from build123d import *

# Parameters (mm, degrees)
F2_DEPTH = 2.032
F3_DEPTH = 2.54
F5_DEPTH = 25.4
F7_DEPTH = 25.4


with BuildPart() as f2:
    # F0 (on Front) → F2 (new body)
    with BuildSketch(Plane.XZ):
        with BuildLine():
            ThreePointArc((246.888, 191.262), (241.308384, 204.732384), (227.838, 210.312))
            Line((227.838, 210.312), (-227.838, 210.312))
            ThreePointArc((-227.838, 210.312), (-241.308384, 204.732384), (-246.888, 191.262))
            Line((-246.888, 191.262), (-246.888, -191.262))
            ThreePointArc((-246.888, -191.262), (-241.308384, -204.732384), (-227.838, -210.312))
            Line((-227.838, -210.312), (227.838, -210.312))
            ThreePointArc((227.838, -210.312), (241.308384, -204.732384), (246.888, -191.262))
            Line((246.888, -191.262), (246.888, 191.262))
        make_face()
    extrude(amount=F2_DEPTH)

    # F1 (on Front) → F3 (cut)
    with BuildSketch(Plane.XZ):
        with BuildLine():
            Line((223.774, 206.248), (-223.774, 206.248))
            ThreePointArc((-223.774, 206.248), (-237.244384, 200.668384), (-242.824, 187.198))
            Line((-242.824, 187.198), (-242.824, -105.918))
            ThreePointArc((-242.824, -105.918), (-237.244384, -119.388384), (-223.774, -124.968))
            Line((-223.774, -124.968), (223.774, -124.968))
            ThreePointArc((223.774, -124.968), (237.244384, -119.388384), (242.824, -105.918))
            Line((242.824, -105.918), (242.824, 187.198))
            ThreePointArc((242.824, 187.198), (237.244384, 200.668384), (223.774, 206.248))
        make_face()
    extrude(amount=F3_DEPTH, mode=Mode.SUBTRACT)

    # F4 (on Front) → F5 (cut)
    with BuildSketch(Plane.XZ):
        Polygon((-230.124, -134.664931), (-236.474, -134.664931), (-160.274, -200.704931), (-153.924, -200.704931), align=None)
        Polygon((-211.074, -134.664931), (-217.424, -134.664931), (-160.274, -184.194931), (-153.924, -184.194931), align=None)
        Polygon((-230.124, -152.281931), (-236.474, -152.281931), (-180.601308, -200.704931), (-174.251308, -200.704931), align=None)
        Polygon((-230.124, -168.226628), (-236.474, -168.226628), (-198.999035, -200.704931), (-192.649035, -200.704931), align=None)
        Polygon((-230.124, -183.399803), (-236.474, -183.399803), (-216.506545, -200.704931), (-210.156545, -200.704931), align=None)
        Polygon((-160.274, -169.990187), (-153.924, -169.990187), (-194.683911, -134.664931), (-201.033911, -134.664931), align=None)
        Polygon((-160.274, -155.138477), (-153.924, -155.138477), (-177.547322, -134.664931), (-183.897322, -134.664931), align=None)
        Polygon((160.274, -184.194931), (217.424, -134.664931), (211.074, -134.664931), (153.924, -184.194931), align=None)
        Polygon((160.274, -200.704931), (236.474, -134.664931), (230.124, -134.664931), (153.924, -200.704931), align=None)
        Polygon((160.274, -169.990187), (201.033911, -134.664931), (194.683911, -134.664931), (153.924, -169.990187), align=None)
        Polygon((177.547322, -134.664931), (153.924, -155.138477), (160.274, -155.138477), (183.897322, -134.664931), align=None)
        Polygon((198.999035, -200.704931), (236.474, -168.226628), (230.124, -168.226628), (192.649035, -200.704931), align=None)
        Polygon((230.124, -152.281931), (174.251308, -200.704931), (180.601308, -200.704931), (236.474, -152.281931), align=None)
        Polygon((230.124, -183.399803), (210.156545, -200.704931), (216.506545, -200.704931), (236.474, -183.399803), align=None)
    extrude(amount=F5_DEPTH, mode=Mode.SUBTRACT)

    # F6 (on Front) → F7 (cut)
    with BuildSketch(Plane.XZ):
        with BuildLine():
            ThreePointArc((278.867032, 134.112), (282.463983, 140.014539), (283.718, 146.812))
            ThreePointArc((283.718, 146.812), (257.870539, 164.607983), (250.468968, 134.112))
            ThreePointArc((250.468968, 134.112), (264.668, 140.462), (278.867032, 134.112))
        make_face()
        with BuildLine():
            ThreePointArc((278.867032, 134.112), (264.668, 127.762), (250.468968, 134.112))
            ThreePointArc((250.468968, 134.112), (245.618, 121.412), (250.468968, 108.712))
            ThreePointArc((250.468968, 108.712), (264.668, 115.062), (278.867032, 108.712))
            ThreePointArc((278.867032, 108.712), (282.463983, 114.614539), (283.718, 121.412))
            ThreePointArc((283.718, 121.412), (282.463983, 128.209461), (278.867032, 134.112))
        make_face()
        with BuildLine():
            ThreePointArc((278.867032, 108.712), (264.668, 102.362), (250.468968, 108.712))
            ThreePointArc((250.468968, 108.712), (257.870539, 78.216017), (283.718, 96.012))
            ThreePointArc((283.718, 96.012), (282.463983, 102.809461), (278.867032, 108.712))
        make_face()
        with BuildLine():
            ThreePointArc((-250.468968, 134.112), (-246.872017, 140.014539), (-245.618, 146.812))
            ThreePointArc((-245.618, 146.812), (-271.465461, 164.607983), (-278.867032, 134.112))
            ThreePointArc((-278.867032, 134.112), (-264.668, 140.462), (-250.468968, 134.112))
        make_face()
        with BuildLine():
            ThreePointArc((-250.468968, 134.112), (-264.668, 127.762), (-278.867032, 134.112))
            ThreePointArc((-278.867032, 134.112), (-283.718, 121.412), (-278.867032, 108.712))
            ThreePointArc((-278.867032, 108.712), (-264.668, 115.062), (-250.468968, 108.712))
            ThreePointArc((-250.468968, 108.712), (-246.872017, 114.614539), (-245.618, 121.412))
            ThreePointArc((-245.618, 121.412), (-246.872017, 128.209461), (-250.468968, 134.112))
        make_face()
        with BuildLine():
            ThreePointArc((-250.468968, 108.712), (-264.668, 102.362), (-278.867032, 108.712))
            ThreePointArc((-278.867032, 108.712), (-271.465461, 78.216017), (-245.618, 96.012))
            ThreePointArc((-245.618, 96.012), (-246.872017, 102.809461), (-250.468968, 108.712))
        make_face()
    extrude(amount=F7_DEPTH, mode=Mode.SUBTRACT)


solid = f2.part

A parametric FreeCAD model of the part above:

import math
import FreeCAD as App
import Part
import Sketcher
from FreeCAD import Vector
Q = App.Units.Quantity

doc = App.newDocument("Part")
body = doc.addObject("PartDesign::Body", "Body")

sketch1 = body.newObject("Sketcher::SketchObject", "Sketch")
sketch1.AttachmentSupport = (doc.getObject("XZ_Plane"), [""])
sketch1.MapMode = "FlatFace"
sketch1.addGeometry([
    Part.ArcOfCircle(Part.Circle(Vector(228, 191, 0), Vector(0, 0, 1), 19), math.radians(0), math.radians(90)),
    Part.LineSegment(Vector(228, 210, 0), Vector(-228, 210, 0)),
    Part.ArcOfCircle(Part.Circle(Vector(-228, 191, 0), Vector(0, 0, 1), 19), math.radians(90), math.radians(180)),
    Part.LineSegment(Vector(-247, 191, 0), Vector(-247, -191, 0)),
    Part.ArcOfCircle(Part.Circle(Vector(-228, -191, 0), Vector(0, 0, 1), 19), math.radians(-180), math.radians(-90)),
    Part.LineSegment(Vector(-228, -210, 0), Vector(228, -210, 0)),
    Part.ArcOfCircle(Part.Circle(Vector(228, -191, 0), Vector(0, 0, 1), 19), math.radians(-90), math.radians(0)),
    Part.LineSegment(Vector(247, -191, 0), Vector(247, 191, 0)),
], False)
sketch1.addConstraint([
    Sketcher.Constraint("Tangent", 0, 2, 1, 1),
    Sketcher.Constraint("Tangent", 1, 2, 2, 1),
    Sketcher.Constraint("Tangent", 2, 2, 3, 1),
    Sketcher.Constraint("Tangent", 3, 2, 4, 1),
    Sketcher.Constraint("Tangent", 4, 2, 5, 1),
    Sketcher.Constraint("Tangent", 5, 2, 6, 1),
    Sketcher.Constraint("Tangent", 6, 2, 7, 1),
    Sketcher.Constraint("Tangent", 7, 2, 0, 1),
    Sketcher.Constraint("Horizontal", 1),
    Sketcher.Constraint("Vertical", 3),
    Sketcher.Constraint("Horizontal", 5),
    Sketcher.Constraint("Vertical", 7),
    Sketcher.Constraint("Equal", 0, 2),
    Sketcher.Constraint("Equal", 2, 4),
    Sketcher.Constraint("Equal", 4, 6),
    Sketcher.Constraint("Symmetric", 0, 3, 4, 3, -1, 1),
    Sketcher.Constraint("Radius", 0, Q("0.75 in")),
    Sketcher.Constraint("DistanceX", 1, 2, 1, 1, Q("17.94 in")),
    Sketcher.Constraint("DistanceY", 3, 2, 3, 1, Q("15.06 in")),
])
pad1 = body.newObject("PartDesign::Pad", "Pad")
pad1.Profile = sketch1
pad1.Length = Q("0.08 in")

sketch2 = body.newObject("Sketcher::SketchObject", "Sketch001")
sketch2.AttachmentSupport = (doc.getObject("XZ_Plane"), [""])
sketch2.MapMode = "FlatFace"
sketch2.addGeometry([
    Part.LineSegment(Vector(224, 206, 0), Vector(-224, 206, 0)),
    Part.ArcOfCircle(Part.Circle(Vector(-224, 187, 0), Vector(0, 0, 1), 19), math.radians(90), math.radians(180)),
    Part.LineSegment(Vector(-243, 187, 0), Vector(-243, -106, 0)),
    Part.ArcOfCircle(Part.Circle(Vector(-224, -106, 0), Vector(0, 0, 1), 19), math.radians(-180), math.radians(-90)),
    Part.LineSegment(Vector(-224, -125, 0), Vector(224, -125, 0)),
    Part.ArcOfCircle(Part.Circle(Vector(224, -106, 0), Vector(0, 0, 1), 19), math.radians(-90), math.radians(0)),
    Part.LineSegment(Vector(243, -106, 0), Vector(243, 187, 0)),
    Part.ArcOfCircle(Part.Circle(Vector(224, 187, 0), Vector(0, 0, 1), 19), math.radians(0), math.radians(90)),
], False)
sketch2.addConstraint([
    Sketcher.Constraint("Tangent", 0, 2, 1, 1),
    Sketcher.Constraint("Tangent", 1, 2, 2, 1),
    Sketcher.Constraint("Tangent", 2, 2, 3, 1),
    Sketcher.Constraint("Tangent", 3, 2, 4, 1),
    Sketcher.Constraint("Tangent", 4, 2, 5, 1),
    Sketcher.Constraint("Tangent", 5, 2, 6, 1),
    Sketcher.Constraint("Tangent", 6, 2, 7, 1),
    Sketcher.Constraint("Tangent", 7, 2, 0, 1),
    Sketcher.Constraint("Horizontal", 0),
    Sketcher.Constraint("Vertical", 2),
    Sketcher.Constraint("Horizontal", 4),
    Sketcher.Constraint("Vertical", 6),
    Sketcher.Constraint("Equal", 1, 3),
    Sketcher.Constraint("Equal", 3, 5),
    Sketcher.Constraint("Equal", 5, 7),
    Sketcher.Constraint("Radius", 1, Q("0.75 in")),
    Sketcher.Constraint("DistanceX", 0, 2, 0, 1, Q("17.62 in")),
    Sketcher.Constraint("DistanceY", 2, 2, 2, 1, Q("11.54 in")),
    Sketcher.Constraint("DistanceX", 1, 3, -1, 1, Q("8.81 in")),
    Sketcher.Constraint("DistanceY", -1, 1, 1, 3, Q("7.37 in")),
])
pocket1 = body.newObject("PartDesign::Pocket", "Pocket")
pocket1.Profile = sketch2
pocket1.Length = Q("0.1 in")
pocket1.Reversed = True

sketch3 = body.newObject("Sketcher::SketchObject", "Sketch002")
sketch3.AttachmentSupport = (doc.getObject("XZ_Plane"), [""])
sketch3.MapMode = "FlatFace"
sketch3.addGeometry([
    Part.LineSegment(Vector(-230, -135, 0), Vector(-236, -135, 0)),
    Part.LineSegment(Vector(-236, -135, 0), Vector(-160, -201, 0)),
    Part.LineSegment(Vector(-160, -201, 0), Vector(-154, -201, 0)),
    Part.LineSegment(Vector(-154, -201, 0), Vector(-230, -135, 0)),
    Part.LineSegment(Vector(-211, -135, 0), Vector(-217, -135, 0)),
    Part.LineSegment(Vector(-217, -135, 0), Vector(-160, -184, 0)),
    Part.LineSegment(Vector(-160, -184, 0), Vector(-154, -184, 0)),
    Part.LineSegment(Vector(-154, -184, 0), Vector(-211, -135, 0)),
    Part.LineSegment(Vector(-230, -152, 0), Vector(-236, -152, 0)),
    Part.LineSegment(Vector(-236, -152, 0), Vector(-181, -201, 0)),
    Part.LineSegment(Vector(-181, -201, 0), Vector(-174, -201, 0)),
    Part.LineSegment(Vector(-174, -201, 0), Vector(-230, -152, 0)),
    Part.LineSegment(Vector(-230, -168, 0), Vector(-236, -168, 0)),
    Part.LineSegment(Vector(-236, -168, 0), Vector(-199, -201, 0)),
    Part.LineSegment(Vector(-199, -201, 0), Vector(-193, -201, 0)),
    Part.LineSegment(Vector(-193, -201, 0), Vector(-230, -168, 0)),
    Part.LineSegment(Vector(-230, -183, 0), Vector(-236, -183, 0)),
    Part.LineSegment(Vector(-236, -183, 0), Vector(-217, -201, 0)),
    Part.LineSegment(Vector(-217, -201, 0), Vector(-210, -201, 0)),
    Part.LineSegment(Vector(-210, -201, 0), Vector(-230, -183, 0)),
    Part.LineSegment(Vector(-160, -170, 0), Vector(-154, -170, 0)),
    Part.LineSegment(Vector(-154, -170, 0), Vector(-195, -135, 0)),
    Part.LineSegment(Vector(-195, -135, 0), Vector(-201, -135, 0)),
    Part.LineSegment(Vector(-201, -135, 0), Vector(-160, -170, 0)),
    Part.LineSegment(Vector(-160, -155, 0), Vector(-154, -155, 0)),
    Part.LineSegment(Vector(-154, -155, 0), Vector(-178, -135, 0)),
    Part.LineSegment(Vector(-178, -135, 0), Vector(-184, -135, 0)),
    Part.LineSegment(Vector(-184, -135, 0), Vector(-160, -155, 0)),
    Part.LineSegment(Vector(160, -184, 0), Vector(217, -135, 0)),
    Part.LineSegment(Vector(217, -135, 0), Vector(211, -135, 0)),
    Part.LineSegment(Vector(211, -135, 0), Vector(154, -184, 0)),
    Part.LineSegment(Vector(154, -184, 0), Vector(160, -184, 0)),
    Part.LineSegment(Vector(160, -201, 0), Vector(236, -135, 0)),
    Part.LineSegment(Vector(236, -135, 0), Vector(230, -135, 0)),
    Part.LineSegment(Vector(230, -135, 0), Vector(154, -201, 0)),
    Part.LineSegment(Vector(154, -201, 0), Vector(160, -201, 0)),
    Part.LineSegment(Vector(160, -170, 0), Vector(201, -135, 0)),
    Part.LineSegment(Vector(201, -135, 0), Vector(195, -135, 0)),
    Part.LineSegment(Vector(195, -135, 0), Vector(154, -170, 0)),
    Part.LineSegment(Vector(154, -170, 0), Vector(160, -170, 0)),
    Part.LineSegment(Vector(178, -135, 0), Vector(154, -155, 0)),
    Part.LineSegment(Vector(154, -155, 0), Vector(160, -155, 0)),
    Part.LineSegment(Vector(160, -155, 0), Vector(184, -135, 0)),
    Part.LineSegment(Vector(184, -135, 0), Vector(178, -135, 0)),
    Part.LineSegment(Vector(199, -201, 0), Vector(236, -168, 0)),
    Part.LineSegment(Vector(236, -168, 0), Vector(230, -168, 0)),
    Part.LineSegment(Vector(230, -168, 0), Vector(193, -201, 0)),
    Part.LineSegment(Vector(193, -201, 0), Vector(199, -201, 0)),
    Part.LineSegment(Vector(230, -152, 0), Vector(174, -201, 0)),
    Part.LineSegment(Vector(174, -201, 0), Vector(181, -201, 0)),
    Part.LineSegment(Vector(181, -201, 0), Vector(236, -152, 0)),
    Part.LineSegment(Vector(236, -152, 0), Vector(230, -152, 0)),
    Part.LineSegment(Vector(230, -183, 0), Vector(210, -201, 0)),
    Part.LineSegment(Vector(210, -201, 0), Vector(217, -201, 0)),
    Part.LineSegment(Vector(217, -201, 0), Vector(236, -183, 0)),
    Part.LineSegment(Vector(236, -183, 0), Vector(230, -183, 0)),
], False)
sketch3.addConstraint([
    Sketcher.Constraint("Coincident", 0, 2, 1, 1),
    Sketcher.Constraint("Coincident", 1, 2, 2, 1),
    Sketcher.Constraint("Coincident", 2, 2, 3, 1),
    Sketcher.Constraint("Coincident", 3, 2, 0, 1),
    Sketcher.Constraint("Coincident", 4, 2, 5, 1),
    Sketcher.Constraint("Coincident", 5, 2, 6, 1),
    Sketcher.Constraint("Coincident", 6, 2, 7, 1),
    Sketcher.Constraint("Coincident", 7, 2, 4, 1),
    Sketcher.Constraint("Coincident", 8, 2, 9, 1),
    Sketcher.Constraint("Coincident", 9, 2, 10, 1),
    Sketcher.Constraint("Coincident", 10, 2, 11, 1),
    Sketcher.Constraint("Coincident", 11, 2, 8, 1),
    Sketcher.Constraint("Coincident", 12, 2, 13, 1),
    Sketcher.Constraint("Coincident", 13, 2, 14, 1),
    Sketcher.Constraint("Coincident", 14, 2, 15, 1),
    Sketcher.Constraint("Coincident", 15, 2, 12, 1),
    Sketcher.Constraint("Coincident", 16, 2, 17, 1),
    Sketcher.Constraint("Coincident", 17, 2, 18, 1),
    Sketcher.Constraint("Coincident", 18, 2, 19, 1),
    Sketcher.Constraint("Coincident", 19, 2, 16, 1),
    Sketcher.Constraint("Coincident", 20, 2, 21, 1),
    Sketcher.Constraint("Coincident", 21, 2, 22, 1),
    Sketcher.Constraint("Coincident", 22, 2, 23, 1),
    Sketcher.Constraint("Coincident", 23, 2, 20, 1),
    Sketcher.Constraint("Coincident", 24, 2, 25, 1),
    Sketcher.Constraint("Coincident", 25, 2, 26, 1),
    Sketcher.Constraint("Coincident", 26, 2, 27, 1),
    Sketcher.Constraint("Coincident", 27, 2, 24, 1),
    Sketcher.Constraint("Coincident", 28, 2, 29, 1),
    Sketcher.Constraint("Coincident", 29, 2, 30, 1),
    Sketcher.Constraint("Coincident", 30, 2, 31, 1),
    Sketcher.Constraint("Coincident", 31, 2, 28, 1),
    Sketcher.Constraint("Coincident", 32, 2, 33, 1),
    Sketcher.Constraint("Coincident", 33, 2, 34, 1),
    Sketcher.Constraint("Coincident", 34, 2, 35, 1),
    Sketcher.Constraint("Coincident", 35, 2, 32, 1),
    Sketcher.Constraint("Coincident", 36, 2, 37, 1),
    Sketcher.Constraint("Coincident", 37, 2, 38, 1),
    Sketcher.Constraint("Coincident", 38, 2, 39, 1),
    Sketcher.Constraint("Coincident", 39, 2, 36, 1),
    Sketcher.Constraint("Coincident", 40, 2, 41, 1),
    Sketcher.Constraint("Coincident", 41, 2, 42, 1),
    Sketcher.Constraint("Coincident", 42, 2, 43, 1),
    Sketcher.Constraint("Coincident", 43, 2, 40, 1),
    Sketcher.Constraint("Coincident", 44, 2, 45, 1),
    Sketcher.Constraint("Coincident", 45, 2, 46, 1),
    Sketcher.Constraint("Coincident", 46, 2, 47, 1),
    Sketcher.Constraint("Coincident", 47, 2, 44, 1),
    Sketcher.Constraint("Coincident", 48, 2, 49, 1),
    Sketcher.Constraint("Coincident", 49, 2, 50, 1),
    Sketcher.Constraint("Coincident", 50, 2, 51, 1),
    Sketcher.Constraint("Coincident", 51, 2, 48, 1),
    Sketcher.Constraint("Coincident", 52, 2, 53, 1),
    Sketcher.Constraint("Coincident", 53, 2, 54, 1),
    Sketcher.Constraint("Coincident", 54, 2, 55, 1),
    Sketcher.Constraint("Coincident", 55, 2, 52, 1),
    Sketcher.Constraint("Horizontal", 0),
    Sketcher.Constraint("Horizontal", 2),
    Sketcher.Constraint("Horizontal", 4),
    Sketcher.Constraint("Horizontal", 6),
    Sketcher.Constraint("Horizontal", 8),
    Sketcher.Constraint("Horizontal", 10),
    Sketcher.Constraint("Horizontal", 12),
    Sketcher.Constraint("Horizontal", 14),
    Sketcher.Constraint("Horizontal", 16),
    Sketcher.Constraint("Horizontal", 18),
    Sketcher.Constraint("Horizontal", 20),
    Sketcher.Constraint("Horizontal", 22),
    Sketcher.Constraint("Horizontal", 24),
    Sketcher.Constraint("Horizontal", 26),
    Sketcher.Constraint("Horizontal", 29),
    Sketcher.Constraint("Horizontal", 31),
    Sketcher.Constraint("Horizontal", 33),
    Sketcher.Constraint("Horizontal", 35),
    Sketcher.Constraint("Horizontal", 37),
    Sketcher.Constraint("Horizontal", 39),
    Sketcher.Constraint("Horizontal", 41),
    Sketcher.Constraint("Horizontal", 43),
    Sketcher.Constraint("Horizontal", 45),
    Sketcher.Constraint("Horizontal", 47),
    Sketcher.Constraint("Horizontal", 49),
    Sketcher.Constraint("Horizontal", 51),
    Sketcher.Constraint("Horizontal", 53),
    Sketcher.Constraint("Horizontal", 55),
    Sketcher.Constraint("Symmetric", 4, 2, 28, 2, -2),
    Sketcher.Constraint("Symmetric", 6, 2, 30, 2, -2),
    Sketcher.Constraint("Symmetric", 0, 2, 32, 2, -2),
    Sketcher.Constraint("Symmetric", 2, 2, 34, 2, -2),
    Sketcher.Constraint("Symmetric", 22, 2, 36, 2, -2),
    Sketcher.Constraint("Symmetric", 20, 2, 38, 2, -2),
    Sketcher.Constraint("Symmetric", 24, 2, 40, 2, -2),
    Sketcher.Constraint("Symmetric", 26, 2, 42, 2, -2),
    Sketcher.Constraint("Symmetric", 12, 2, 44, 2, -2),
    Sketcher.Constraint("Symmetric", 14, 2, 46, 2, -2),
    Sketcher.Constraint("Symmetric", 10, 2, 48, 2, -2),
    Sketcher.Constraint("Symmetric", 8, 2, 50, 2, -2),
    Sketcher.Constraint("Symmetric", 18, 2, 52, 2, -2),
    Sketcher.Constraint("Symmetric", 16, 2, 54, 2, -2),
    Sketcher.Constraint("Parallel", 1, 3),
    Sketcher.Constraint("Parallel", 3, 5),
    Sketcher.Constraint("Parallel", 5, 7),
    Sketcher.Constraint("Parallel", 7, 9),
    Sketcher.Constraint("Parallel", 9, 11),
    Sketcher.Constraint("Parallel", 11, 13),
    Sketcher.Constraint("Parallel", 13, 15),
    Sketcher.Constraint("Parallel", 15, 17),
    Sketcher.Constraint("Parallel", 17, 19),
    Sketcher.Constraint("Parallel", 19, 21),
    Sketcher.Constraint("Parallel", 21, 23),
    Sketcher.Constraint("Parallel", 23, 25),
    Sketcher.Constraint("Parallel", 25, 27),
    Sketcher.Constraint("Parallel", 28, 30),
    Sketcher.Constraint("Parallel", 30, 32),
    Sketcher.Constraint("Parallel", 32, 34),
    Sketcher.Constraint("Parallel", 34, 36),
    Sketcher.Constraint("Parallel", 36, 38),
    Sketcher.Constraint("Parallel", 38, 40),
    Sketcher.Constraint("Parallel", 40, 42),
    Sketcher.Constraint("Parallel", 42, 44),
    Sketcher.Constraint("Parallel", 44, 46),
    Sketcher.Constraint("Parallel", 46, 48),
    Sketcher.Constraint("Parallel", 48, 50),
    Sketcher.Constraint("Parallel", 50, 52),
    Sketcher.Constraint("Parallel", 52, 54),
    Sketcher.Constraint("Horizontal", 3, 2, 4, 2),
    Sketcher.Constraint("Horizontal", 2, 2, 9, 2),
    Sketcher.Constraint("Horizontal", 10, 2, 13, 2),
    Sketcher.Constraint("Horizontal", 14, 2, 17, 2),
    Sketcher.Constraint("Horizontal", 7, 2, 21, 2),
    Sketcher.Constraint("Horizontal", 22, 2, 25, 2),
    Sketcher.Constraint("Vertical", 1, 2, 5, 2),
    Sketcher.Constraint("Vertical", 2, 2, 6, 2),
    Sketcher.Constraint("Vertical", 0, 2, 8, 2),
    Sketcher.Constraint("Vertical", 3, 2, 11, 2),
    Sketcher.Constraint("Vertical", 8, 2, 12, 2),
    Sketcher.Constraint("Vertical", 11, 2, 15, 2),
    Sketcher.Constraint("Vertical", 12, 2, 16, 2),
    Sketcher.Constraint("Vertical", 15, 2, 19, 2),
    Sketcher.Constraint("Vertical", 6, 2, 20, 2),
    Sketcher.Constraint("Vertical", 5, 2, 23, 2),
    Sketcher.Constraint("Vertical", 20, 2, 24, 2),
    Sketcher.Constraint("Vertical", 23, 2, 27, 2),
    Sketcher.Constraint("Vertical", 31, 2, 35, 2),
    Sketcher.Constraint("DistanceX", 0, 2, 1, 2, Q("3 in")),
    Sketcher.Constraint("DistanceX", 0, 2, 7, 2, Q("1 in")),
    Sketcher.Constraint("DistanceX", 0, 2, 0, 1, Q("0.25 in")),
    Sketcher.Constraint("DistanceY", 1, 2, 0, 2, Q("2.6 in")),
    Sketcher.Constraint("DistanceX", 0, 2, -1, 1, Q("9.31 in")),
    Sketcher.Constraint("DistanceY", 8, 2, 0, 2, 17.617),
    Sketcher.Constraint("Distance", 21, 53.937409),
    Sketcher.Constraint("DistanceY", 0, 2, -1, 1, 134.664931),
    Sketcher.Constraint("DistanceY", 12, 2, -1, 1, 168.226628),
    Sketcher.Constraint("DistanceX", 25, 2, -1, 1, 177.547322),
    Sketcher.Constraint("DistanceX", 17, 2, 13, 2, 17.50751),
])
pocket2 = body.newObject("PartDesign::Pocket", "Pocket001")
pocket2.Profile = sketch3
pocket2.Length = Q("1 in")
pocket2.Reversed = True

sketch4 = body.newObject("Sketcher::SketchObject", "Sketch003")
sketch4.AttachmentSupport = (doc.getObject("XZ_Plane"), [""])
sketch4.MapMode = "FlatFace"
sketch4.addGeometry([
    Part.ArcOfCircle(Part.Circle(Vector(265, 147, 0), Vector(0, 0, 1), 19), math.radians(-42), math.radians(0)),
    Part.ArcOfCircle(Part.Circle(Vector(265, 147, 0), Vector(0, 0, 1), 19), math.radians(0), math.radians(222)),
    Part.ArcOfCircle(Part.Circle(Vector(265, 121, 0), Vector(0, 0, 1), 19), math.radians(42), math.radians(138)),
    Part.ArcOfCircle(Part.Circle(Vector(265, 147, 0), Vector(0, 0, 1), 19), math.radians(-138), math.radians(-42)),
    Part.ArcOfCircle(Part.Circle(Vector(265, 121, 0), Vector(0, 0, 1), 19), math.radians(138), math.radians(222)),
    Part.ArcOfCircle(Part.Circle(Vector(265, 96, 0), Vector(0, 0, 1), 19), math.radians(42), math.radians(138)),
    Part.ArcOfCircle(Part.Circle(Vector(265, 121, 0), Vector(0, 0, 1), 19), math.radians(-42), math.radians(0)),
    Part.ArcOfCircle(Part.Circle(Vector(265, 121, 0), Vector(0, 0, 1), 19), math.radians(0), math.radians(42)),
    Part.ArcOfCircle(Part.Circle(Vector(265, 121, 0), Vector(0, 0, 1), 19), math.radians(-138), math.radians(-42)),
    Part.ArcOfCircle(Part.Circle(Vector(265, 96, 0), Vector(0, 0, 1), 19), math.radians(138), math.radians(360)),
    Part.ArcOfCircle(Part.Circle(Vector(265, 96, 0), Vector(0, 0, 1), 19), math.radians(0), math.radians(42)),
    Part.ArcOfCircle(Part.Circle(Vector(-265, 147, 0), Vector(0, 0, 1), 19), math.radians(-42), math.radians(0)),
    Part.ArcOfCircle(Part.Circle(Vector(-265, 147, 0), Vector(0, 0, 1), 19), math.radians(0), math.radians(222)),
    Part.ArcOfCircle(Part.Circle(Vector(-265, 121, 0), Vector(0, 0, 1), 19), math.radians(42), math.radians(138)),
    Part.ArcOfCircle(Part.Circle(Vector(-265, 147, 0), Vector(0, 0, 1), 19), math.radians(-138), math.radians(-42)),
    Part.ArcOfCircle(Part.Circle(Vector(-265, 121, 0), Vector(0, 0, 1), 19), math.radians(138), math.radians(222)),
    Part.ArcOfCircle(Part.Circle(Vector(-265, 96, 0), Vector(0, 0, 1), 19), math.radians(42), math.radians(138)),
    Part.ArcOfCircle(Part.Circle(Vector(-265, 121, 0), Vector(0, 0, 1), 19), math.radians(-42), math.radians(0)),
    Part.ArcOfCircle(Part.Circle(Vector(-265, 121, 0), Vector(0, 0, 1), 19), math.radians(0), math.radians(42)),
    Part.ArcOfCircle(Part.Circle(Vector(-265, 121, 0), Vector(0, 0, 1), 19), math.radians(-138), math.radians(-42)),
    Part.ArcOfCircle(Part.Circle(Vector(-265, 96, 0), Vector(0, 0, 1), 19), math.radians(138), math.radians(360)),
    Part.ArcOfCircle(Part.Circle(Vector(-265, 96, 0), Vector(0, 0, 1), 19), math.radians(0), math.radians(42)),
], False)
sketch4.addConstraint([
    Sketcher.Constraint("Tangent", 0, 2, 1, 1),
    Sketcher.Constraint("Coincident", 1, 2, 2, 2),
    Sketcher.Constraint("Coincident", 2, 1, 0, 1),
    Sketcher.Constraint("Coincident", 3, 1, 4, 1),
    Sketcher.Constraint("Coincident", 4, 2, 5, 2),
    Sketcher.Constraint("Coincident", 5, 1, 6, 1),
    Sketcher.Constraint("Tangent", 6, 2, 7, 1),
    Sketcher.Constraint("Coincident", 7, 2, 3, 2),
    Sketcher.Constraint("Coincident", 8, 1, 9, 1),
    Sketcher.Constraint("Tangent", 9, 2, 10, 1),
    Sketcher.Constraint("Coincident", 10, 2, 8, 2),
    Sketcher.Constraint("Tangent", 11, 2, 12, 1),
    Sketcher.Constraint("Coincident", 12, 2, 13, 2),
    Sketcher.Constraint("Coincident", 13, 1, 11, 1),
    Sketcher.Constraint("Coincident", 14, 1, 15, 1),
    Sketcher.Constraint("Coincident", 15, 2, 16, 2),
    Sketcher.Constraint("Coincident", 16, 1, 17, 1),
    Sketcher.Constraint("Tangent", 17, 2, 18, 1),
    Sketcher.Constraint("Coincident", 18, 2, 14, 2),
    Sketcher.Constraint("Coincident", 19, 1, 20, 1),
    Sketcher.Constraint("Tangent", 20, 2, 21, 1),
    Sketcher.Constraint("Coincident", 21, 2, 19, 2),
    Sketcher.Constraint("Coincident", 3, 3, 0, 3),
    Sketcher.Constraint("Coincident", 4, 3, 2, 3),
    Sketcher.Constraint("Coincident", 6, 3, 2, 3),
    Sketcher.Constraint("Coincident", 8, 3, 2, 3),
    Sketcher.Constraint("Coincident", 9, 3, 5, 3),
    Sketcher.Constraint("Coincident", 14, 3, 11, 3),
    Sketcher.Constraint("Coincident", 15, 3, 13, 3),
    Sketcher.Constraint("Coincident", 17, 3, 13, 3),
    Sketcher.Constraint("Coincident", 19, 3, 13, 3),
    Sketcher.Constraint("Coincident", 20, 3, 16, 3),
    Sketcher.Constraint("Coincident", 3, 1, 1, 2),
    Sketcher.Constraint("Coincident", 7, 2, 2, 1),
    Sketcher.Constraint("Coincident", 8, 1, 4, 2),
    Sketcher.Constraint("Coincident", 10, 2, 5, 1),
    Sketcher.Constraint("Coincident", 14, 1, 12, 2),
    Sketcher.Constraint("Coincident", 18, 2, 13, 1),
    Sketcher.Constraint("Coincident", 19, 1, 15, 2),
    Sketcher.Constraint("Coincident", 21, 2, 16, 1),
    Sketcher.Constraint("Equal", 1, 2),
    Sketcher.Constraint("Equal", 4, 5),
    Sketcher.Constraint("Equal", 10, 11),
    Sketcher.Constraint("Equal", 12, 13),
    Sketcher.Constraint("Equal", 15, 16),
    Sketcher.Constraint("Symmetric", 1, 3, 11, 3, -2),
    Sketcher.Constraint("Symmetric", 2, 3, 13, 3, -2),
    Sketcher.Constraint("Symmetric", 5, 3, 16, 3, -2),
    Sketcher.Constraint("Horizontal", 14, 3, 0, 2),
    Sketcher.Constraint("Horizontal", 1, 2, 2, 1),
    Sketcher.Constraint("Horizontal", 4, 2, 5, 1),
    Sketcher.Constraint("Horizontal", 19, 3, 6, 2),
    Sketcher.Constraint("Horizontal", 20, 3, 9, 2),
    Sketcher.Constraint("Horizontal", 0, 2, 11, 2),
    Sketcher.Constraint("Horizontal", 6, 2, 17, 2),
    Sketcher.Constraint("Horizontal", 9, 2, 20, 2),
    Sketcher.Constraint("Vertical", 3, 1, 4, 2),
    Sketcher.Constraint("Radius", 1, Q("0.75 in")),
    Sketcher.Constraint("DistanceY", 2, 3, 1, 3, Q("1 in")),
    Sketcher.Constraint("DistanceY", -1, 1, 0, 3, Q("5.7800001 in")),
    Sketcher.Constraint("DistanceX", -1, 1, 1, 3, Q("10.42 in")),
])
pocket3 = body.newObject("PartDesign::Pocket", "Pocket002")
pocket3.Profile = sketch4
pocket3.Length = Q("1 in")
pocket3.Reversed = True

doc.recompute()
